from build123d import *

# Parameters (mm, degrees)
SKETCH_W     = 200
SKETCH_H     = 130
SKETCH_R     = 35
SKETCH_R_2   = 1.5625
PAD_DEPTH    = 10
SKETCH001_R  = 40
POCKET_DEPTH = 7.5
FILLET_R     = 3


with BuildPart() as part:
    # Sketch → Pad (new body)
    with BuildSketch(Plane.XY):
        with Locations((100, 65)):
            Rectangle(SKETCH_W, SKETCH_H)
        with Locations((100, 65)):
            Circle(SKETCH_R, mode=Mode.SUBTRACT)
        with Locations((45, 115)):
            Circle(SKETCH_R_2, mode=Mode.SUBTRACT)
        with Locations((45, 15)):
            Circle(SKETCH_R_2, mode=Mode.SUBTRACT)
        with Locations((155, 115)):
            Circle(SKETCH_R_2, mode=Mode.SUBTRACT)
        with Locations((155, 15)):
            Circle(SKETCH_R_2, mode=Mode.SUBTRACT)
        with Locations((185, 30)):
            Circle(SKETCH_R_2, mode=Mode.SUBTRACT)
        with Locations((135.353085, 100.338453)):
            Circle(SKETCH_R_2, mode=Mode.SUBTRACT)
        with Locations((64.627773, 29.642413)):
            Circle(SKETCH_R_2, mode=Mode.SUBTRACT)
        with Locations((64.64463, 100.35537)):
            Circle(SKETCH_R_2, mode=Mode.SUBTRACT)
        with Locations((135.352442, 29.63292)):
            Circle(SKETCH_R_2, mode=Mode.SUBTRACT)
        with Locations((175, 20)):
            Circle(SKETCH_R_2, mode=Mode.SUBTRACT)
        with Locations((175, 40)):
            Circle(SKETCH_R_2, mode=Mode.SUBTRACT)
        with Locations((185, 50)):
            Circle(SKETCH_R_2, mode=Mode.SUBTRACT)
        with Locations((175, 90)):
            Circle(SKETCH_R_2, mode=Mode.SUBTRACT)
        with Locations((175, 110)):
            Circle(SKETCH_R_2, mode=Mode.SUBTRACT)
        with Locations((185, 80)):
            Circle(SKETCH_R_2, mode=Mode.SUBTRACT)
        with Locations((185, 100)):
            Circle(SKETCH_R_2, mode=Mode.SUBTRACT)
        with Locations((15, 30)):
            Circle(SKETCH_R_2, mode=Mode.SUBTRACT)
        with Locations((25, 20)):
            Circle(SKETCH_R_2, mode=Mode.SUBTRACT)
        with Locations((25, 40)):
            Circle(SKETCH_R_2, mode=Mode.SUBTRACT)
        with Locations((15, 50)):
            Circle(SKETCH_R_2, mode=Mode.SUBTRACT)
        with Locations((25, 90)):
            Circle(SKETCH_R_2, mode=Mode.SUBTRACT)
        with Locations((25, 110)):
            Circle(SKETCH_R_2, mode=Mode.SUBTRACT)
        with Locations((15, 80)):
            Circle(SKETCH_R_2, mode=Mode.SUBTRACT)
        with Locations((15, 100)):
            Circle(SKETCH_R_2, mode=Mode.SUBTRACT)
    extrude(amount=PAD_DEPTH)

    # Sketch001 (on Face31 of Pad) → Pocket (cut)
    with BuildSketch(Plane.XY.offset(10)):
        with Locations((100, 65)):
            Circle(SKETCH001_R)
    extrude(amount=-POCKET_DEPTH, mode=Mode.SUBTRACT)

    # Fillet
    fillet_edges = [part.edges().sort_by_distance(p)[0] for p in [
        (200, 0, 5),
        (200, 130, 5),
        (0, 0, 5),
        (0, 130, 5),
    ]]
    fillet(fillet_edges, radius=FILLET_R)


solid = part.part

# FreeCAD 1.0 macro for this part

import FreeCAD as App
import Part
import Sketcher

V = App.Vector


def edges_at(feature, points):
    """Names of the edges that pass closest to the given points."""
    edges = feature.Shape.Edges
    near = lambda p: min(range(len(edges)), key=lambda i: edges[i].distToShape(Part.Vertex(*p))[0])
    return sorted({f"Edge{near(p) + 1}" for p in points})

doc = App.newDocument("Part")
body = doc.addObject("PartDesign::Body", "Body")

# Sketch on XY plane
sketch1 = body.newObject("Sketcher::SketchObject", "Sketch")
sketch1.AttachmentSupport = (doc.getObject("XY_Plane"), [""])
sketch1.MapMode = "FlatFace"
sketch1.addGeometry(Part.LineSegment(V(0, 130, 0), V(0, 0, 0)), False)
sketch1.addGeometry(Part.LineSegment(V(0, 0, 0), V(200, 0, 0)), False)
sketch1.addGeometry(Part.LineSegment(V(200, 0, 0), V(200, 130, 0)), False)
sketch1.addGeometry(Part.LineSegment(V(200, 130, 0), V(0, 130, 0)), False)
sketch1.addGeometry(Part.Circle(V(25, 20, 0), V(0, 0, 1), 1.6), False)
sketch1.addGeometry(Part.Circle(V(45, 15, 0), V(0, 0, 1), 1.6), False)
sketch1.addGeometry(Part.Circle(V(15, 30, 0), V(0, 0, 1), 1.6), False)
sketch1.addGeometry(Part.Circle(V(64.6, 29.6, 0), V(0, 0, 1), 1.6), False)
sketch1.addGeometry(Part.Circle(V(25, 40, 0), V(0, 0, 1), 1.6), False)
sketch1.addGeometry(Part.Circle(V(15, 50, 0), V(0, 0, 1), 1.6), False)
sketch1.addGeometry(Part.Circle(V(135.4, 29.6, 0), V(0, 0, 1), 1.6), False)
sketch1.addGeometry(Part.Circle(V(155, 15, 0), V(0, 0, 1), 1.6), False)
sketch1.addGeometry(Part.Circle(V(175, 20, 0), V(0, 0, 1), 1.6), False)
sketch1.addGeometry(Part.Circle(V(185, 30, 0), V(0, 0, 1), 1.6), False)
sketch1.addGeometry(Part.Circle(V(175, 40, 0), V(0, 0, 1), 1.6), False)
sketch1.addGeometry(Part.Circle(V(185, 50, 0), V(0, 0, 1), 1.6), False)
sketch1.addGeometry(Part.Circle(V(15, 80, 0), V(0, 0, 1), 1.6), False)
sketch1.addGeometry(Part.Circle(V(25, 90, 0), V(0, 0, 1), 1.6), False)
sketch1.addGeometry(Part.Circle(V(15, 100, 0), V(0, 0, 1), 1.6), False)
sketch1.addGeometry(Part.Circle(V(25, 110, 0), V(0, 0, 1), 1.6), False)
sketch1.addGeometry(Part.Circle(V(45, 115, 0), V(0, 0, 1), 1.6), False)
sketch1.addGeometry(Part.Circle(V(64.6, 100.4, 0), V(0, 0, 1), 1.6), False)
sketch1.addGeometry(Part.Circle(V(100, 65, 0), V(0, 0, 1), 35), False)
sketch1.addGeometry(Part.Circle(V(185, 80, 0), V(0, 0, 1), 1.6), False)
sketch1.addGeometry(Part.Circle(V(175, 90, 0), V(0, 0, 1), 1.6), False)
sketch1.addGeometry(Part.Circle(V(135.4, 100.3, 0), V(0, 0, 1), 1.6), False)
sketch1.addGeometry(Part.Circle(V(185, 100, 0), V(0, 0, 1), 1.6), False)
sketch1.addGeometry(Part.Circle(V(155, 115, 0), V(0, 0, 1), 1.6), False)
sketch1.addGeometry(Part.Circle(V(175, 110, 0), V(0, 0, 1), 1.6), False)
sketch1.addConstraint(Sketcher.Constraint("Coincident", 0, 2, 1, 1))
sketch1.addConstraint(Sketcher.Constraint("Coincident", 1, 2, 2, 1))
sketch1.addConstraint(Sketcher.Constraint("Coincident", 2, 2, 3, 1))
sketch1.addConstraint(Sketcher.Constraint("Coincident", 3, 2, 0, 1))
sketch1.addConstraint(Sketcher.Constraint("Vertical", 0))
sketch1.addConstraint(Sketcher.Constraint("Horizontal", 1))
sketch1.addConstraint(Sketcher.Constraint("Vertical", 2))
sketch1.addConstraint(Sketcher.Constraint("Horizontal", 3))
sketch1.addConstraint(Sketcher.Constraint("Coincident", 0, 2, -1, 1))
sketch1.addConstraint(Sketcher.Constraint("Equal", 4, 5))
sketch1.addConstraint(Sketcher.Constraint("Equal", 5, 6))
sketch1.addConstraint(Sketcher.Constraint("Equal", 6, 7))
sketch1.addConstraint(Sketcher.Constraint("Equal", 7, 8))
sketch1.addConstraint(Sketcher.Constraint("Equal", 8, 9))
sketch1.addConstraint(Sketcher.Constraint("Equal", 9, 10))
sketch1.addConstraint(Sketcher.Constraint("Equal", 10, 11))
sketch1.addConstraint(Sketcher.Constraint("Equal", 11, 12))
sketch1.addConstraint(Sketcher.Constraint("Equal", 12, 13))
sketch1.addConstraint(Sketcher.Constraint("Equal", 13, 14))
sketch1.addConstraint(Sketcher.Constraint("Equal", 14, 15))
sketch1.addConstraint(Sketcher.Constraint("Equal", 15, 16))
sketch1.addConstraint(Sketcher.Constraint("Equal", 16, 17))
sketch1.addConstraint(Sketcher.Constraint("Equal", 17, 18))
sketch1.addConstraint(Sketcher.Constraint("Equal", 18, 19))
sketch1.addConstraint(Sketcher.Constraint("Equal", 19, 20))
sketch1.addConstraint(Sketcher.Constraint("Equal", 20, 21))
sketch1.addConstraint(Sketcher.Constraint("Equal", 21, 23))
sketch1.addConstraint(Sketcher.Constraint("Equal", 23, 24))
sketch1.addConstraint(Sketcher.Constraint("Equal", 24, 25))
sketch1.addConstraint(Sketcher.Constraint("Equal", 25, 26))
sketch1.addConstraint(Sketcher.Constraint("Equal", 26, 27))
sketch1.addConstraint(Sketcher.Constraint("Equal", 27, 28))
sketch1.addConstraint(Sketcher.Constraint("Horizontal", 5, 3, 11, 3))
sketch1.addConstraint(Sketcher.Constraint("Horizontal", 4, 3, 12, 3))
sketch1.addConstraint(Sketcher.Constraint("Horizontal", 6, 3, 13, 3))
sketch1.addConstraint(Sketcher.Constraint("Horizontal", 8, 3, 14, 3))
sketch1.addConstraint(Sketcher.Constraint("Horizontal", 9, 3, 15, 3))
sketch1.addConstraint(Sketcher.Constraint("Horizontal", 16, 3, 23, 3))
sketch1.addConstraint(Sketcher.Constraint("Horizontal", 17, 3, 24, 3))
sketch1.addConstraint(Sketcher.Constraint("Horizontal", 18, 3, 26, 3))
sketch1.addConstraint(Sketcher.Constraint("Horizontal", 20, 3, 27, 3))
sketch1.addConstraint(Sketcher.Constraint("Horizontal", 19, 3, 28, 3))
sketch1.addConstraint(Sketcher.Constraint("Vertical", 4, 3, 8, 3))
sketch1.addConstraint(Sketcher.Constraint("Vertical", 6, 3, 9, 3))
sketch1.addConstraint(Sketcher.Constraint("Vertical", 12, 3, 14, 3))
sketch1.addConstraint(Sketcher.Constraint("Vertical", 13, 3, 15, 3))
sketch1.addConstraint(Sketcher.Constraint("Vertical", 9, 3, 16, 3))
sketch1.addConstraint(Sketcher.Constraint("Vertical", 8, 3, 17, 3))
sketch1.addConstraint(Sketcher.Constraint("Vertical", 16, 3, 18, 3))
sketch1.addConstraint(Sketcher.Constraint("Vertical", 17, 3, 19, 3))
sketch1.addConstraint(Sketcher.Constraint("Vertical", 5, 3, 20, 3))
sketch1.addConstraint(Sketcher.Constraint("Vertical", 15, 3, 23, 3))
sketch1.addConstraint(Sketcher.Constraint("Vertical", 14, 3, 24, 3))
sketch1.addConstraint(Sketcher.Constraint("Vertical", 23, 3, 26, 3))
sketch1.addConstraint(Sketcher.Constraint("Vertical", 11, 3, 27, 3))
sketch1.addConstraint(Sketcher.Constraint("Vertical", 24, 3, 28, 3))
sketch1.addConstraint(Sketcher.Constraint("Diameter", 22, 70.0))
sketch1.addConstraint(Sketcher.Constraint("DistanceX", 1, 1, 1, 2, 200.0))
sketch1.addConstraint(Sketcher.Constraint("DistanceY", 0, 2, 0, 1, 130.0))
sketch1.addConstraint(Sketcher.Constraint("Diameter", 4, 3.125))
sketch1.addConstraint(Sketcher.Constraint("DistanceX", -1, 1, 4, 3, 25.0))
sketch1.addConstraint(Sketcher.Constraint("DistanceY", -1, 1, 4, 3, 20.0))
sketch1.addConstraint(Sketcher.Constraint("DistanceX", -1, 1, 5, 3, 45.0))
sketch1.addConstraint(Sketcher.Constraint("DistanceY", -1, 1, 5, 3, 15.0))
sketch1.addConstraint(Sketcher.Constraint("DistanceX", -1, 1, 6, 3, 15.0))
sketch1.addConstraint(Sketcher.Constraint("DistanceY", -1, 1, 6, 3, 30.0))
sketch1.addConstraint(Sketcher.Constraint("DistanceY", -1, 1, 8, 3, 40.0))
sketch1.addConstraint(Sketcher.Constraint("DistanceY", -1, 1, 9, 3, 50.0))
sketch1.addConstraint(Sketcher.Constraint("DistanceX", -1, 1, 11, 3, 155.0))
sketch1.addConstraint(Sketcher.Constraint("DistanceX", -1, 1, 12, 3, 175.0))
sketch1.addConstraint(Sketcher.Constraint("DistanceX", -1, 1, 13, 3, 185.0))
sketch1.addConstraint(Sketcher.Constraint("DistanceY", -1, 1, 16, 3, 80.0))
sketch1.addConstraint(Sketcher.Constraint("DistanceY", -1, 1, 17, 3, 90.0))
sketch1.addConstraint(Sketcher.Constraint("DistanceY", -1, 1, 18, 3, 100.0))
sketch1.addConstraint(Sketcher.Constraint("DistanceY", -1, 1, 19, 3, 110.0))
sketch1.addConstraint(Sketcher.Constraint("DistanceY", -1, 1, 20, 3, 115.0))
sketch1.addConstraint(Sketcher.Constraint("DistanceX", -1, 1, 22, 3, 100.0))
sketch1.addConstraint(Sketcher.Constraint("DistanceY", -1, 1, 22, 3, 65.0))
sketch1.addConstraint(Sketcher.Constraint("DistanceX", -1, 1, 10, 3, 135.352442))
sketch1.addConstraint(Sketcher.Constraint("DistanceY", -1, 1, 10, 3, 29.63292))
sketch1.addConstraint(Sketcher.Constraint("DistanceX", -1, 1, 21, 3, 64.64463))
sketch1.addConstraint(Sketcher.Constraint("DistanceY", -1, 1, 21, 3, 100.35537))
sketch1.addConstraint(Sketcher.Constraint("DistanceX", 7, 3, 10, 3, 70.724669))
sketch1.addConstraint(Sketcher.Constraint("DistanceY", -1, 1, 7, 3, 29.642413))
sketch1.addConstraint(Sketcher.Constraint("DistanceX", -1, 1, 25, 3, 135.353085))
sketch1.addConstraint(Sketcher.Constraint("DistanceY", -1, 1, 25, 3, 100.338453))
pad1 = body.newObject("PartDesign::Pad", "Pad")
pad1.Profile = sketch1
pad1.Length = 10

# Sketch on XY plane
sketch2 = body.newObject("Sketcher::SketchObject", "Sketch001")
sketch2.AttachmentSupport = (doc.getObject("XY_Plane"), [""])
sketch2.MapMode = "FlatFace"
sketch2.AttachmentOffset = App.Placement(V(0, 0, 10), App.Rotation())
sketch2.addGeometry(Part.Circle(V(100, 65, 0), V(0, 0, 1), 40), False)
sketch2.addConstraint(Sketcher.Constraint("Diameter", 0, 80.0))
sketch2.addConstraint(Sketcher.Constraint("DistanceX", -1, 1, 0, 3, 100.0))
sketch2.addConstraint(Sketcher.Constraint("DistanceY", -1, 1, 0, 3, 65.0))
pocket1 = body.newObject("PartDesign::Pocket", "Pocket")
pocket1.Profile = sketch2
pocket1.Length = 7.5
doc.recompute()

fillet = body.newObject("PartDesign::Fillet", "Fillet")
fillet.Base = (pocket1, edges_at(pocket1, [
    (200, 0, 5),
    (200, 130, 5),
    (0, 0, 5),
    (0, 130, 5),
]))
fillet.Radius = 3

doc.recompute()
